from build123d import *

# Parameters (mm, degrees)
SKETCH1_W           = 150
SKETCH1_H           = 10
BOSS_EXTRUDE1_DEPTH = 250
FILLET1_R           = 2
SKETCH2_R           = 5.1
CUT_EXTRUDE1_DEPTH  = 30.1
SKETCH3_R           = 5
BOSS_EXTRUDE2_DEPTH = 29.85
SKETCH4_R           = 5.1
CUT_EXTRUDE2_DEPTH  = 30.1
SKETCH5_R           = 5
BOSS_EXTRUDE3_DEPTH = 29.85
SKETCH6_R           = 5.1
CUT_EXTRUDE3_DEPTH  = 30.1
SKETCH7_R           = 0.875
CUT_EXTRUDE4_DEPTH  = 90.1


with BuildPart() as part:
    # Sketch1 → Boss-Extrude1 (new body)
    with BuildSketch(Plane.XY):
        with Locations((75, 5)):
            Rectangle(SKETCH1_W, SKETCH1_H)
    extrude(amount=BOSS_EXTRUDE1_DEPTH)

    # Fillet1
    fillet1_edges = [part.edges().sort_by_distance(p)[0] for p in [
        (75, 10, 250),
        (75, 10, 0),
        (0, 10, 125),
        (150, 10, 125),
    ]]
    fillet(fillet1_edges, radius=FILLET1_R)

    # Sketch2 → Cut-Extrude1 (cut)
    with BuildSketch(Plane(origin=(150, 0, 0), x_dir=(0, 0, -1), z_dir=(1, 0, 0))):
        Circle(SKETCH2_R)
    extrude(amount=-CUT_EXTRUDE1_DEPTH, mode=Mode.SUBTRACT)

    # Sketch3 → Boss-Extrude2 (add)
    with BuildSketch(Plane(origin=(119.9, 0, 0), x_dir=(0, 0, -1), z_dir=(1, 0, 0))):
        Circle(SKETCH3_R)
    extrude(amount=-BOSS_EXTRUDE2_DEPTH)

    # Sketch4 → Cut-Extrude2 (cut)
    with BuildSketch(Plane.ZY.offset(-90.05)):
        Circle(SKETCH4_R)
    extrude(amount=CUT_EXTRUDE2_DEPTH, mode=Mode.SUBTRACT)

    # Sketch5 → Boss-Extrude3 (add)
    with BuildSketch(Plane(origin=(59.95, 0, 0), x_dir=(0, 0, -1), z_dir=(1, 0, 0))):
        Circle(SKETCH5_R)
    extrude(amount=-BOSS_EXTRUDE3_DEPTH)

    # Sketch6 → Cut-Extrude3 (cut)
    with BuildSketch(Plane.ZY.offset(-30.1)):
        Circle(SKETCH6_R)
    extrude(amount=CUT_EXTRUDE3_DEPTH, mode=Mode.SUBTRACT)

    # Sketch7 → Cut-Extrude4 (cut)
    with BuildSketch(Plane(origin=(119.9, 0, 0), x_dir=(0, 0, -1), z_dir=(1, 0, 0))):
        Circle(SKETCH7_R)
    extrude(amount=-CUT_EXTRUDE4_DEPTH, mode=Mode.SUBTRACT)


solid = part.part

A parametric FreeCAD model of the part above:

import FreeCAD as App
import Part
import Sketcher
from FreeCAD import Vector
Q = App.Units.Quantity


def edges_at(feature, points):
    """Names of the edges that pass closest to the given points."""
    edges = feature.Shape.Edges
    near = lambda p: min(range(len(edges)), key=lambda i: edges[i].distToShape(Part.Vertex(*p))[0])
    return sorted({f"Edge{near(p) + 1}" for p in points})


def add_polygon(sketch, points):
    """Adds a closed chain of lines whose ends are joined by coincident constraints."""
    first, n = sketch.GeometryCount, len(points)
    for a, b in zip(points, points[1:] + points[:1]):
        sketch.addGeometry(Part.LineSegment(App.Vector(*a, 0), App.Vector(*b, 0)), False)
    for i in range(n):
        sketch.addConstraint(Sketcher.Constraint("Coincident", first + i, 2, first + (i + 1) % n, 1))

doc = App.newDocument("Part")
params = doc.addObject("Spreadsheet::Sheet", "Params")
for row, (alias, value) in enumerate([
    ("sketch1_width", "150 mm"),
    ("sketch1_height", "10 mm"),
    ("pad1_length", "250 mm"),
    ("fillet_radius", "2 mm"),
    ("sketch2_diameter", "10.2 mm"),
    ("pocket1_length", "30.1 mm"),
    ("sketch3_diameter", "10 mm"),
    ("pad2_length", "29.85 mm"),
    ("sketch4_diameter", "10.2 mm"),
    ("pocket2_length", "30.1 mm"),
    ("sketch5_diameter", "10 mm"),
    ("pad3_length", "29.85 mm"),
    ("sketch6_diameter", "10.2 mm"),
    ("pocket3_length", "30.1 mm"),
    ("sketch7_diameter", "1.75 mm"),
    ("pocket4_length", "90.1 mm"),
], start=1):
    params.set(f"A{row}", alias)
    params.set(f"B{row}", "=" + value)
    params.setAlias(f"B{row}", alias)

body = doc.addObject("PartDesign::Body", "Body")

sketch1 = body.newObject("Sketcher::SketchObject", "Sketch")
sketch1.AttachmentSupport = (doc.getObject("XY_Plane"), [""])
sketch1.MapMode = "FlatFace"
add_polygon(sketch1, [(0, 10), (0, 0), (150, 0), (150, 10)])
sketch1.addConstraint([
    Sketcher.Constraint("Vertical", 0),
    Sketcher.Constraint("Horizontal", 1),
    Sketcher.Constraint("Vertical", 2),
    Sketcher.Constraint("Horizontal", 3),
    Sketcher.Constraint("Coincident", 0, 2, -1, 1),
    Sketcher.Constraint("DistanceX", 1, 1, 1, 2, Q("150 mm")),
    Sketcher.Constraint("DistanceY", 0, 2, 0, 1, Q("10 mm")),
])
sketch1.setExpression("Constraints[9]", "Params.sketch1_width")
sketch1.setExpression("Constraints[10]", "Params.sketch1_height")
pad1 = body.newObject("PartDesign::Pad", "Pad")
pad1.Profile = sketch1
pad1.setExpression("Length", "Params.pad1_length")
doc.recompute()

fillet = body.newObject("PartDesign::Fillet", "Fillet")
fillet.Base = (pad1, edges_at(pad1, [
    (75, 10, 250),
    (75, 10, 0),
    (0, 10, 125),
    (150, 10, 125),
]))
fillet.setExpression("Radius", "Params.fillet_radius")

sketch2 = body.newObject("Sketcher::SketchObject", "Sketch001")
sketch2.AttachmentSupport = (doc.getObject("YZ_Plane"), [""])
sketch2.MapMode = "FlatFace"
sketch2.AttachmentOffset = App.Placement(Vector(0, 0, 150), App.Rotation())
sketch2.addGeometry(Part.Circle(Vector(0, 0, 0), Vector(0, 0, 1), 5), False)
sketch2.addConstraint([
    Sketcher.Constraint("Coincident", 0, 3, -1, 1),
    Sketcher.Constraint("Diameter", 0, Q("10.2 mm")),
])
sketch2.setExpression("Constraints[1]", "Params.sketch2_diameter")
pocket1 = body.newObject("PartDesign::Pocket", "Pocket")
pocket1.Profile = sketch2
pocket1.setExpression("Length", "Params.pocket1_length")

sketch3 = body.newObject("Sketcher::SketchObject", "Sketch002")
sketch3.AttachmentSupport = (doc.getObject("YZ_Plane"), [""])
sketch3.MapMode = "FlatFace"
sketch3.AttachmentOffset = App.Placement(Vector(0, 0, 119.9), App.Rotation())
sketch3.addGeometry(Part.Circle(Vector(0, 0, 0), Vector(0, 0, 1), 5), False)
sketch3.addConstraint([
    Sketcher.Constraint("Coincident", 0, 3, -1, 1),
    Sketcher.Constraint("Diameter", 0, Q("10 mm")),
])
sketch3.setExpression("Constraints[1]", "Params.sketch3_diameter")
pad2 = body.newObject("PartDesign::Pad", "Pad001")
pad2.Profile = sketch3
pad2.setExpression("Length", "Params.pad2_length")
pad2.Reversed = True

sketch4 = body.newObject("Sketcher::SketchObject", "Sketch003")
sketch4.AttachmentSupport = (doc.getObject("YZ_Plane"), [""])
sketch4.MapMode = "FlatFace"
sketch4.AttachmentOffset = App.Placement(Vector(0, 0, 90.05), App.Rotation())
sketch4.addGeometry(Part.Circle(Vector(0, 0, 0), Vector(0, 0, 1), 5), False)
sketch4.addConstraint([
    Sketcher.Constraint("Coincident", 0, 3, -1, 1),
    Sketcher.Constraint("Diameter", 0, Q("10.2 mm")),
])
sketch4.setExpression("Constraints[1]", "Params.sketch4_diameter")
pocket2 = body.newObject("PartDesign::Pocket", "Pocket001")
pocket2.Profile = sketch4
pocket2.setExpression("Length", "Params.pocket2_length")

sketch5 = body.newObject("Sketcher::SketchObject", "Sketch004")
sketch5.AttachmentSupport = (doc.getObject("YZ_Plane"), [""])
sketch5.MapMode = "FlatFace"
sketch5.AttachmentOffset = App.Placement(Vector(0, 0, 59.95), App.Rotation())
sketch5.addGeometry(Part.Circle(Vector(0, 0, 0), Vector(0, 0, 1), 5), False)
sketch5.addConstraint([
    Sketcher.Constraint("Coincident", 0, 3, -1, 1),
    Sketcher.Constraint("Diameter", 0, Q("10 mm")),
])
sketch5.setExpression("Constraints[1]", "Params.sketch5_diameter")
pad3 = body.newObject("PartDesign::Pad", "Pad002")
pad3.Profile = sketch5
pad3.setExpression("Length", "Params.pad3_length")
pad3.Reversed = True

sketch6 = body.newObject("Sketcher::SketchObject", "Sketch005")
sketch6.AttachmentSupport = (doc.getObject("YZ_Plane"), [""])
sketch6.MapMode = "FlatFace"
sketch6.AttachmentOffset = App.Placement(Vector(0, 0, 30.1), App.Rotation())
sketch6.addGeometry(Part.Circle(Vector(0, 0, 0), Vector(0, 0, 1), 5), False)
sketch6.addConstraint([
    Sketcher.Constraint("Coincident", 0, 3, -1, 1),
    Sketcher.Constraint("Diameter", 0, Q("10.2 mm")),
])
sketch6.setExpression("Constraints[1]", "Params.sketch6_diameter")
pocket3 = body.newObject("PartDesign::Pocket", "Pocket002")
pocket3.Profile = sketch6
pocket3.setExpression("Length", "Params.pocket3_length")

sketch7 = body.newObject("Sketcher::SketchObject", "Sketch006")
sketch7.AttachmentSupport = (doc.getObject("YZ_Plane"), [""])
sketch7.MapMode = "FlatFace"
sketch7.AttachmentOffset = App.Placement(Vector(0, 0, 119.9), App.Rotation())
sketch7.addGeometry(Part.Circle(Vector(0, 0, 0), Vector(0, 0, 1), 0.9), False)
sketch7.addConstraint([
    Sketcher.Constraint("Coincident", 0, 3, -1, 1),
    Sketcher.Constraint("Diameter", 0, Q("1.75 mm")),
])
sketch7.setExpression("Constraints[1]", "Params.sketch7_diameter")
pocket4 = body.newObject("PartDesign::Pocket", "Pocket003")
pocket4.Profile = sketch7
pocket4.setExpression("Length", "Params.pocket4_length")

doc.recompute()
